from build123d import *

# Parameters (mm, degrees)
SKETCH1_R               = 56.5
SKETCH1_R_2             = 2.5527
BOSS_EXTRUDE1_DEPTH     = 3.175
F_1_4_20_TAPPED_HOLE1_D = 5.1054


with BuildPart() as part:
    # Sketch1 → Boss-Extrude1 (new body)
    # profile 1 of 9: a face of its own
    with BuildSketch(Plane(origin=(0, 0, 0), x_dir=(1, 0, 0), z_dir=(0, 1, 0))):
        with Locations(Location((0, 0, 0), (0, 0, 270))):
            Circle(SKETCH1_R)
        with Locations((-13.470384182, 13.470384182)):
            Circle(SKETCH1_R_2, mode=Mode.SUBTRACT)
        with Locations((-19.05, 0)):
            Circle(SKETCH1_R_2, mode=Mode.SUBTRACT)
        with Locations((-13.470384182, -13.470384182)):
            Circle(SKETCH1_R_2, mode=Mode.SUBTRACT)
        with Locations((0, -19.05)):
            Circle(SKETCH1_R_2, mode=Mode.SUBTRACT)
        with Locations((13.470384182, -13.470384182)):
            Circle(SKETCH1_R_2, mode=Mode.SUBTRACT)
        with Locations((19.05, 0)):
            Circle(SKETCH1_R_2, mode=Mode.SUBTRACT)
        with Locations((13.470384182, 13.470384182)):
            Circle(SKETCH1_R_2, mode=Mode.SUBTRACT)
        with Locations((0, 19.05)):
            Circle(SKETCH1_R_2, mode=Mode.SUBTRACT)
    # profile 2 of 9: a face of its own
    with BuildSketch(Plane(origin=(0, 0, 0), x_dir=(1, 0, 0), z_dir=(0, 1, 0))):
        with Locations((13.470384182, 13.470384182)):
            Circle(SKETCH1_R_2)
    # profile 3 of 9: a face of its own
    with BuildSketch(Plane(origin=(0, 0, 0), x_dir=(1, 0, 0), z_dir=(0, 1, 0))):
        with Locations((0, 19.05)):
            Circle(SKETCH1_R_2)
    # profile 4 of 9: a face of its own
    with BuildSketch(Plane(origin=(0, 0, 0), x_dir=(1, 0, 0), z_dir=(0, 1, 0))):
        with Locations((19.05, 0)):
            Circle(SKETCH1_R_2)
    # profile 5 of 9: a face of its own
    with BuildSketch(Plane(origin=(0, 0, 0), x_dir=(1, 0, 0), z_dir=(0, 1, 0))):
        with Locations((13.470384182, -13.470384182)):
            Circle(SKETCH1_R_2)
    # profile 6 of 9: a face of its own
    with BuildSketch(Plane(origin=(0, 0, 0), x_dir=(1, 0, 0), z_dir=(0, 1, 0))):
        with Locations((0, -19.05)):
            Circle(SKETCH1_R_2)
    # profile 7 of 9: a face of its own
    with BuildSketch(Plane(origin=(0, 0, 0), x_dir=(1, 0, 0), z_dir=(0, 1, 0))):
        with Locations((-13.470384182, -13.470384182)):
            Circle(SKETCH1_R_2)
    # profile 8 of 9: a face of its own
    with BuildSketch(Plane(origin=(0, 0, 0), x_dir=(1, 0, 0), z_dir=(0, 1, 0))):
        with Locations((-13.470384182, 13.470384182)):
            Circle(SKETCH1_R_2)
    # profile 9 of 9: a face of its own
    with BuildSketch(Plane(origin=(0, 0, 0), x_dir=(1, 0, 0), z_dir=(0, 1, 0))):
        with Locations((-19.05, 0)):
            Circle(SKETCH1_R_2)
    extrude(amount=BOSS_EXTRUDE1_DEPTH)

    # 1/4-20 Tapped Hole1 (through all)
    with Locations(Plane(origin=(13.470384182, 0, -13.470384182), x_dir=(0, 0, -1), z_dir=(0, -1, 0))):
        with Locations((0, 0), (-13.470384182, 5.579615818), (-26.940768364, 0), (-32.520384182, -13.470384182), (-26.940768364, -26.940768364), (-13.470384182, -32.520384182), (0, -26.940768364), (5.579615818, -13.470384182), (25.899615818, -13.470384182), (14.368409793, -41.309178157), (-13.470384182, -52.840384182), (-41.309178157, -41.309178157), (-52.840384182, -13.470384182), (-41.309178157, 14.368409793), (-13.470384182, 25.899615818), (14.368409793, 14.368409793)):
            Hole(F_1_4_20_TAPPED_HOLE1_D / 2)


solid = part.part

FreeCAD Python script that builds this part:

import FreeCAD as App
import Part
import Sketcher

V = App.Vector
Q = App.Units.Quantity

doc = App.newDocument("Part")
params = doc.addObject("Spreadsheet::Sheet", "Params")
for row, (alias, value) in enumerate([
    ("pad1_length", "0.125 in"),
    ("sketch2_diameter", "0.201 in"),
    ("hole_diameter", "0.201 in"),
], start=1):
    params.set(f"A{row}", alias)
    params.set(f"B{row}", "=" + value)
    params.setAlias(f"B{row}", alias)

body = doc.addObject("PartDesign::Body", "Body")

# Sketch on XZ plane
sketch1 = body.newObject("Sketcher::SketchObject", "Sketch")
sketch1.AttachmentSupport = (doc.getObject("XZ_Plane"), [""])
sketch1.MapMode = "FlatFace"
sketch1.addGeometry(Part.Circle(V(0, 0, 0), V(0, 0, 1), 56), False)
sketch1.addConstraint(Sketcher.Constraint("Coincident", 0, 3, -1, 1))
sketch1.addConstraint(Sketcher.Constraint("Diameter", 0, 113.0))
pad1 = body.newObject("PartDesign::Pad", "Pad")
pad1.Profile = sketch1
pad1.setExpression("Length", "Params.pad1_length")
pad1.Reversed = True

# Sketch on XZ plane
sketch2 = body.newObject("Sketcher::SketchObject", "Sketch001")
sketch2.AttachmentSupport = (doc.getObject("XZ_Plane"), [""])
sketch2.MapMode = "FlatFace"
sketch2.addGeometry(Part.Circle(V(13.5, -13.5, 0), V(0, 0, 1), 2.6), False)
sketch2.addGeometry(Part.Circle(V(19.1, 0, 0), V(0, 0, 1), 2.6), False)
sketch2.addGeometry(Part.Circle(V(13.5, 13.5, 0), V(0, 0, 1), 2.6), False)
sketch2.addGeometry(Part.Circle(V(0, 19.1, 0), V(0, 0, 1), 2.6), False)
sketch2.addGeometry(Part.Circle(V(-13.5, 13.5, 0), V(0, 0, 1), 2.6), False)
sketch2.addGeometry(Part.Circle(V(-19.1, 0, 0), V(0, 0, 1), 2.6), False)
sketch2.addGeometry(Part.Circle(V(-13.5, -13.5, 0), V(0, 0, 1), 2.6), False)
sketch2.addGeometry(Part.Circle(V(0, -19.1, 0), V(0, 0, 1), 2.6), False)
sketch2.addGeometry(Part.Circle(V(0, -39.4, 0), V(0, 0, 1), 2.6), False)
sketch2.addGeometry(Part.Circle(V(-27.8, -27.8, 0), V(0, 0, 1), 2.6), False)
sketch2.addGeometry(Part.Circle(V(-39.4, 0, 0), V(0, 0, 1), 2.6), False)
sketch2.addGeometry(Part.Circle(V(-27.8, 27.8, 0), V(0, 0, 1), 2.6), False)
sketch2.addGeometry(Part.Circle(V(0, 39.4, 0), V(0, 0, 1), 2.6), False)
sketch2.addGeometry(Part.Circle(V(27.8, 27.8, 0), V(0, 0, 1), 2.6), False)
sketch2.addGeometry(Part.Circle(V(39.4, 0, 0), V(0, 0, 1), 2.6), False)
sketch2.addGeometry(Part.Circle(V(27.8, -27.8, 0), V(0, 0, 1), 2.6), False)
sketch2.addConstraint(Sketcher.Constraint("Equal", 0, 1))
sketch2.addConstraint(Sketcher.Constraint("Equal", 1, 2))
sketch2.addConstraint(Sketcher.Constraint("Equal", 2, 3))
sketch2.addConstraint(Sketcher.Constraint("Equal", 3, 4))
sketch2.addConstraint(Sketcher.Constraint("Equal", 4, 5))
sketch2.addConstraint(Sketcher.Constraint("Equal", 5, 6))
sketch2.addConstraint(Sketcher.Constraint("Equal", 6, 7))
sketch2.addConstraint(Sketcher.Constraint("Equal", 7, 8))
sketch2.addConstraint(Sketcher.Constraint("Equal", 8, 9))
sketch2.addConstraint(Sketcher.Constraint("Equal", 9, 10))
sketch2.addConstraint(Sketcher.Constraint("Equal", 10, 11))
sketch2.addConstraint(Sketcher.Constraint("Equal", 11, 12))
sketch2.addConstraint(Sketcher.Constraint("Equal", 12, 13))
sketch2.addConstraint(Sketcher.Constraint("Equal", 13, 14))
sketch2.addConstraint(Sketcher.Constraint("Equal", 14, 15))
sketch2.addConstraint(Sketcher.Constraint("Symmetric", 0, 3, 4, 3, -1, 1))
sketch2.addConstraint(Sketcher.Constraint("Symmetric", 1, 3, 5, 3, -1, 1))
sketch2.addConstraint(Sketcher.Constraint("Symmetric", 2, 3, 6, 3, -1, 1))
sketch2.addConstraint(Sketcher.Constraint("Symmetric", 3, 3, 7, 3, -1, 1))
sketch2.addConstraint(Sketcher.Constraint("Symmetric", 8, 3, 12, 3, -1, 1))
sketch2.addConstraint(Sketcher.Constraint("Symmetric", 9, 3, 13, 3, -1, 1))
sketch2.addConstraint(Sketcher.Constraint("Symmetric", 10, 3, 14, 3, -1, 1))
sketch2.addConstraint(Sketcher.Constraint("Symmetric", 11, 3, 15, 3, -1, 1))
sketch2.addConstraint(Sketcher.Constraint("Symmetric", 2, 3, 4, 3, -2))
sketch2.addConstraint(Sketcher.Constraint("Symmetric", 11, 3, 13, 3, -2))
sketch2.addConstraint(Sketcher.Constraint("PointOnObject", 1, 3, -1))
sketch2.addConstraint(Sketcher.Constraint("PointOnObject", 3, 3, -2))
sketch2.addConstraint(Sketcher.Constraint("PointOnObject", 8, 3, -2))
sketch2.addConstraint(Sketcher.Constraint("PointOnObject", 10, 3, -1))
sketch2.addConstraint(Sketcher.Constraint("Diameter", 0, Q("0.201 in")))
sketch2.addConstraint(Sketcher.Constraint("DistanceX", 5, 3, 1, 3, Q("1.5 in")))
sketch2.addConstraint(Sketcher.Constraint("DistanceY", 8, 3, 7, 3, Q("0.8 in")))
sketch2.addConstraint(Sketcher.Constraint("DistanceX", 10, 3, 5, 3, Q("0.8 in")))
sketch2.addConstraint(Sketcher.Constraint("DistanceY", -1, 1, 3, 3, Q("0.75 in")))
sketch2.addConstraint(Sketcher.Constraint("DistanceY", 0, 3, 2, 3, 26.940768))
sketch2.addConstraint(Sketcher.Constraint("DistanceX", 4, 3, 2, 3, 26.940768))
sketch2.addConstraint(Sketcher.Constraint("DistanceX", 9, 3, 6, 3, 14.36841))
sketch2.addConstraint(Sketcher.Constraint("DistanceY", 9, 3, 6, 3, 14.36841))
sketch2.setExpression("Constraints[29]", "Params.sketch2_diameter")
doc.recompute()
hole = body.newObject("PartDesign::Hole", "Hole")
hole.Profile = sketch2
hole.ThreadType = "None"
hole.setExpression("Diameter", "Params.hole_diameter")
hole.DepthType = "ThroughAll"

doc.recompute()
